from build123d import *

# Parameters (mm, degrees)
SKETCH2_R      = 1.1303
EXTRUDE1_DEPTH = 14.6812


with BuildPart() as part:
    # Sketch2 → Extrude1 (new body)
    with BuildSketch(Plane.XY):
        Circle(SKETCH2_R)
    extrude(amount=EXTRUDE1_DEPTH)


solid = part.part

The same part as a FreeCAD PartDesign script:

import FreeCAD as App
import Part
import Sketcher
from FreeCAD import Vector
Q = App.Units.Quantity

doc = App.newDocument("Part")
body = doc.addObject("PartDesign::Body", "Body")

sketch1 = body.newObject("Sketcher::SketchObject", "Sketch")
sketch1.AttachmentSupport = (doc.getObject("XY_Plane"), [""])
sketch1.MapMode = "FlatFace"
sketch1.addGeometry(Part.Circle(Vector(0, 0, 0), Vector(0, 0, 1), 1.1303), False)
sketch1.addConstraint(Sketcher.Constraint("Coincident", 0, 3, -1, 1))
sketch1.addConstraint(Sketcher.Constraint("Diameter", 0, Q("0.089 in")))
pad1 = body.newObject("PartDesign::Pad", "Pad")
pad1.Profile = sketch1
pad1.Length = Q("0.578 in")

doc.recompute()
